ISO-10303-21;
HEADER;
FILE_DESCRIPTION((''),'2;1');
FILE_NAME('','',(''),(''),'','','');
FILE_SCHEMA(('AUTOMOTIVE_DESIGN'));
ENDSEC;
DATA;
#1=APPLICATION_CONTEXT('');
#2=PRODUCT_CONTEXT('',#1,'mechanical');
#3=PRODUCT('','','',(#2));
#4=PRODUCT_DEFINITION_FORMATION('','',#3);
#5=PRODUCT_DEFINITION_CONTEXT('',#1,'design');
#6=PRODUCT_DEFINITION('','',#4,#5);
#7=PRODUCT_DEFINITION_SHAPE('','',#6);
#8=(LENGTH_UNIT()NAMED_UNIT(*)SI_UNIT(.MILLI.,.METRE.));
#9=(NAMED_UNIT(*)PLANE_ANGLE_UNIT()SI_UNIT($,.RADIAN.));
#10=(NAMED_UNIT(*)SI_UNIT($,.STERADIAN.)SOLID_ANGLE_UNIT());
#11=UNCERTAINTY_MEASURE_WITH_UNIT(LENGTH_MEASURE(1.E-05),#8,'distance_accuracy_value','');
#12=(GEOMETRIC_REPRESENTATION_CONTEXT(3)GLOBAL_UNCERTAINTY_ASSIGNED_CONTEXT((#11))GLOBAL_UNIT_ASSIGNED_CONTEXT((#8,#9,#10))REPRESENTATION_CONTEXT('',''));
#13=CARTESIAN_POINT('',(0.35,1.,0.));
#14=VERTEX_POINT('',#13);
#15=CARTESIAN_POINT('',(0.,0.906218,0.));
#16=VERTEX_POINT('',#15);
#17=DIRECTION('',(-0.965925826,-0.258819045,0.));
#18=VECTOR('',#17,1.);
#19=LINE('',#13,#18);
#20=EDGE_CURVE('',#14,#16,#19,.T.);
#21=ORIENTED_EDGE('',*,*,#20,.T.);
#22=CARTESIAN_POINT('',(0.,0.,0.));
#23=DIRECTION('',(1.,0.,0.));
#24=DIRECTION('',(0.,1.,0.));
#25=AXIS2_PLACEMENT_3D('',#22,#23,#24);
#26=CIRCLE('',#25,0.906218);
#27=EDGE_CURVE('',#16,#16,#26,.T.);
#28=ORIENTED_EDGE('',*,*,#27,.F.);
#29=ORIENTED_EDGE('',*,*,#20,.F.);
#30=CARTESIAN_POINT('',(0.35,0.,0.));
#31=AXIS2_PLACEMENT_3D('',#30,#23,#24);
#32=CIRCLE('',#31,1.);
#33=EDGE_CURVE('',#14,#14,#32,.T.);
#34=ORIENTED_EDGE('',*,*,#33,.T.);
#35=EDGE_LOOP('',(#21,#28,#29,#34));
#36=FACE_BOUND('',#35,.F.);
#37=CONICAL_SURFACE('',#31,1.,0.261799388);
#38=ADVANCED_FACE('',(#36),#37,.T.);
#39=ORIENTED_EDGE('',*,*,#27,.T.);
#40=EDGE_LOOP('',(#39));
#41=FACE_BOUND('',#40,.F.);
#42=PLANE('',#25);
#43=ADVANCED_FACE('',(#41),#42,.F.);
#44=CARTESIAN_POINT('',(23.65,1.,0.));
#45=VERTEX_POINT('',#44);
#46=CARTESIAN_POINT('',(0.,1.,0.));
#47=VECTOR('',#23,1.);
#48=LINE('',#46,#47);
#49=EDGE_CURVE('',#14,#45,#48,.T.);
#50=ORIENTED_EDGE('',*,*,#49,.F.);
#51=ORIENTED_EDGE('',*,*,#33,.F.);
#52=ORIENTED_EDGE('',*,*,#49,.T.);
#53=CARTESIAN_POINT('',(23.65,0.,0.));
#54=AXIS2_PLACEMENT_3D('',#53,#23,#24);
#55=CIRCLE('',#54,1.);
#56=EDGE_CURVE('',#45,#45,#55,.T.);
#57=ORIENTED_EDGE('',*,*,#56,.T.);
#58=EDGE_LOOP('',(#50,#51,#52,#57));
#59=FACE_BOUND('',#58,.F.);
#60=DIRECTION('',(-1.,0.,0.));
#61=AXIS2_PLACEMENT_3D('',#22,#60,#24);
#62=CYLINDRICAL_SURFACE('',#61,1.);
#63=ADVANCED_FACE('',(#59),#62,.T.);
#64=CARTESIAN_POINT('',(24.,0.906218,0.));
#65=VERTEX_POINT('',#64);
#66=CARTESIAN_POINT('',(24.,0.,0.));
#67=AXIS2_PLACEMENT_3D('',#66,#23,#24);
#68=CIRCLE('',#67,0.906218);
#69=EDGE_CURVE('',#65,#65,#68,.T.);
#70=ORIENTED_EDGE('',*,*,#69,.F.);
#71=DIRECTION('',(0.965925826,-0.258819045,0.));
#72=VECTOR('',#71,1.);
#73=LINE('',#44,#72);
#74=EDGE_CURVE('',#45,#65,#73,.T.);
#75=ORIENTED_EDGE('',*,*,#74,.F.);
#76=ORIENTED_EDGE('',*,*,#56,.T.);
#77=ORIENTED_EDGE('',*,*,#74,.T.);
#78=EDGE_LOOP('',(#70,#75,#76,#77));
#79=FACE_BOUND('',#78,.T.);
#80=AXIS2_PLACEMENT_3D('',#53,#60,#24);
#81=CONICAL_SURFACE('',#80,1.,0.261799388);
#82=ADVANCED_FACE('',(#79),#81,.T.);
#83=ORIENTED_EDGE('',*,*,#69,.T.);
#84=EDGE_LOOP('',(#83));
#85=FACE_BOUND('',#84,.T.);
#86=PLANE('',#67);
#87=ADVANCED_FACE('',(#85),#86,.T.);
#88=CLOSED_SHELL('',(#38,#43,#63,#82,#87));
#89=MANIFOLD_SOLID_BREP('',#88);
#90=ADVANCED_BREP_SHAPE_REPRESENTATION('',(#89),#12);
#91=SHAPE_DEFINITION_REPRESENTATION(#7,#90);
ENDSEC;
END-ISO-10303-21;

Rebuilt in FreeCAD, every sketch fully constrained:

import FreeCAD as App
import Part
import Sketcher
Q = App.Units.Quantity


def edges_at(feature, points):
    """Names of the edges that pass closest to the given points."""
    edges = feature.Shape.Edges
    near = lambda p: min(range(len(edges)), key=lambda i: edges[i].distToShape(Part.Vertex(*p))[0])
    return sorted({f"Edge{near(p) + 1}" for p in points})

doc = App.newDocument("Part")
body = doc.addObject("PartDesign::Body", "Body")

sketch1 = body.newObject("Sketcher::SketchObject", "Sketch")
sketch1.AttachmentSupport = (doc.getObject("YZ_Plane"), [""])
sketch1.MapMode = "FlatFace"
sketch1.addGeometry(Part.Circle(App.Vector(0, 0, 0), App.Vector(0, 0, 1), 1), False)
sketch1.addConstraint(Sketcher.Constraint("Coincident", 0, 3, -1, 1))
sketch1.addConstraint(Sketcher.Constraint("Diameter", 0, Q("2 mm")))
pad1 = body.newObject("PartDesign::Pad", "Pad")
pad1.Profile = sketch1
pad1.Length = 24
doc.recompute()

chamfer = body.newObject("PartDesign::Chamfer", "Chamfer")
chamfer.Base = (pad1, edges_at(pad1, [(0, -1, 0)]))
chamfer.ChamferType = "Distance and Angle"
chamfer.Size = 0.35
chamfer.Angle = 15
doc.recompute()

chamfer2 = body.newObject("PartDesign::Chamfer", "Chamfer001")
chamfer2.Base = (chamfer, edges_at(chamfer, [(24, -1, 0)]))
chamfer2.ChamferType = "Distance and Angle"
chamfer2.Size = 0.35
chamfer2.Angle = 15

doc.recompute()
